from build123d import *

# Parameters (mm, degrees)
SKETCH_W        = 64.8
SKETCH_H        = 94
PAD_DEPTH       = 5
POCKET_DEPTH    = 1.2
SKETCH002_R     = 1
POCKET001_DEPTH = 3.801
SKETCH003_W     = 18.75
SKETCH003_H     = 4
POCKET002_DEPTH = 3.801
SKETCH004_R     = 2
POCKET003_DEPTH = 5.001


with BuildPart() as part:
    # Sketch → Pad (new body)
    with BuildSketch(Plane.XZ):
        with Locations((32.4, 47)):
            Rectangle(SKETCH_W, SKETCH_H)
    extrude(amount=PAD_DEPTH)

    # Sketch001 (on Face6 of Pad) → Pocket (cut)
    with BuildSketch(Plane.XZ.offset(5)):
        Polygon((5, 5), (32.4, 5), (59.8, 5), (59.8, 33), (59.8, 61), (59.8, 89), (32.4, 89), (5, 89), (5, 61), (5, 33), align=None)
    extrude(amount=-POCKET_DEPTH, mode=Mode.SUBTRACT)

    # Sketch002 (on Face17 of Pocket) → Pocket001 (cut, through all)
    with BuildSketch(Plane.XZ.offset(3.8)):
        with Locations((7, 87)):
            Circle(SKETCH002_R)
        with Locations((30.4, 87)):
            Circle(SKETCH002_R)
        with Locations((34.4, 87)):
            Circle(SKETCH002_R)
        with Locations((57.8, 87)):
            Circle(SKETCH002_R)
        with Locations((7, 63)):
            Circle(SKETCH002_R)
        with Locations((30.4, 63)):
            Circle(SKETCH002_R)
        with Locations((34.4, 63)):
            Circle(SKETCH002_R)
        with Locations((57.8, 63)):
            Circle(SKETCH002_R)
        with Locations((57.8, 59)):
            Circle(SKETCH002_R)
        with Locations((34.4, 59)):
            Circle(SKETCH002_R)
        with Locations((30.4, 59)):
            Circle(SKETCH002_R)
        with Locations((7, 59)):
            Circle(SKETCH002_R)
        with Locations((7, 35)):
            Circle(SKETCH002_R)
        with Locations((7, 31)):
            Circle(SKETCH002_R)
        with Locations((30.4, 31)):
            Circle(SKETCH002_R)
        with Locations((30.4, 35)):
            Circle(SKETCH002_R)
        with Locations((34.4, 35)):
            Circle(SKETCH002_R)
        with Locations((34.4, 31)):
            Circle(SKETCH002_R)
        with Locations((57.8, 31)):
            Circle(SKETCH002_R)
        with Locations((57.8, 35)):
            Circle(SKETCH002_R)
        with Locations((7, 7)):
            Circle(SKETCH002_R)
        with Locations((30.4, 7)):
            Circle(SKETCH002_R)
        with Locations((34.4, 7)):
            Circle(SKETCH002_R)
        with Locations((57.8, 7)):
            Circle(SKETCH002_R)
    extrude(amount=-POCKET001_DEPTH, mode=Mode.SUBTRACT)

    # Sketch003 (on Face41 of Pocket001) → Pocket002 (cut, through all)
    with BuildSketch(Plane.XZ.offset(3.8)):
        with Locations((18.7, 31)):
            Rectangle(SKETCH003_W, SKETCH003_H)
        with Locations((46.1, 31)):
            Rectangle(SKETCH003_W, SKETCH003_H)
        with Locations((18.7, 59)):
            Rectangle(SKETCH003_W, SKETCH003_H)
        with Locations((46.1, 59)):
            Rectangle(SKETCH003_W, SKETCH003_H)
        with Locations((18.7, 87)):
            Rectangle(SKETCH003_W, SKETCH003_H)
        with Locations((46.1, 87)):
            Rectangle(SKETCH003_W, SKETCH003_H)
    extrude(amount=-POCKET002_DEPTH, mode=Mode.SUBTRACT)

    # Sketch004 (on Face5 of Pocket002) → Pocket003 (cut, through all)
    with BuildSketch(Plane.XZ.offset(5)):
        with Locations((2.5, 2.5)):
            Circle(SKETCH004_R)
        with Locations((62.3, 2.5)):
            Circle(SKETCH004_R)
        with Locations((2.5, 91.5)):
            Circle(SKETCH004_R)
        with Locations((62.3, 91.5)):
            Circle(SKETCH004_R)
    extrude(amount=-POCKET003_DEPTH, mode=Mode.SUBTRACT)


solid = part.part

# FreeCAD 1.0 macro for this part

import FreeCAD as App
import Part
import Sketcher
from FreeCAD import Vector

doc = App.newDocument("Part")
body = doc.addObject("PartDesign::Body", "Body")

# Sketch on XZ plane
sketch1 = doc.addObject("Sketcher::SketchObject", "Sketch")
body.addObject(sketch1)
sketch1.AttachmentSupport = (doc.XZ_Plane, [""])
sketch1.MapMode = "FlatFace"
sketch1.addGeometry([
    Part.LineSegment(Vector(0, 94, 0), Vector(0, 0, 0)),
    Part.LineSegment(Vector(0, 0, 0), Vector(65, 0, 0)),
    Part.LineSegment(Vector(65, 0, 0), Vector(65, 94, 0)),
    Part.LineSegment(Vector(65, 94, 0), Vector(0, 94, 0)),
], False)
sketch1.addConstraint([
    Sketcher.Constraint("Coincident", 0, 2, 1, 1),
    Sketcher.Constraint("Coincident", 1, 2, 2, 1),
    Sketcher.Constraint("Coincident", 2, 2, 3, 1),
    Sketcher.Constraint("Coincident", 3, 2, 0, 1),
    Sketcher.Constraint("Vertical", 0),
    Sketcher.Constraint("Horizontal", 1),
    Sketcher.Constraint("Vertical", 2),
    Sketcher.Constraint("Horizontal", 3),
    Sketcher.Constraint("Coincident", 0, 2, -1, 1),
    Sketcher.Constraint("DistanceY", 0, 2, 0, 1, 94.0),
    Sketcher.Constraint("DistanceX", 1, 1, 1, 2, 64.8),
])
pad1 = doc.addObject("PartDesign::Pad", "Pad")
body.addObject(pad1)
pad1.Profile = sketch1
pad1.Length = 5

# Sketch on XZ plane
sketch2 = doc.addObject("Sketcher::SketchObject", "Sketch001")
body.addObject(sketch2)
sketch2.AttachmentSupport = (doc.XZ_Plane, [""])
sketch2.MapMode = "FlatFace"
sketch2.AttachmentOffset = App.Placement(Vector(0, 0, 5), App.Rotation())
sketch2.addGeometry([
    Part.LineSegment(Vector(5, 5, 0), Vector(60, 5, 0)),
    Part.LineSegment(Vector(60, 5, 0), Vector(60, 89, 0)),
    Part.LineSegment(Vector(60, 89, 0), Vector(5, 89, 0)),
    Part.LineSegment(Vector(5, 89, 0), Vector(5, 5, 0)),
], False)
sketch2.addConstraint([
    Sketcher.Constraint("Coincident", 0, 2, 1, 1),
    Sketcher.Constraint("Coincident", 1, 2, 2, 1),
    Sketcher.Constraint("Coincident", 2, 2, 3, 1),
    Sketcher.Constraint("Coincident", 3, 2, 0, 1),
    Sketcher.Constraint("Horizontal", 0),
    Sketcher.Constraint("Vertical", 1),
    Sketcher.Constraint("Horizontal", 2),
    Sketcher.Constraint("Vertical", 3),
    Sketcher.Constraint("DistanceY", 1, 1, 1, 2, 84.0),
    Sketcher.Constraint("DistanceX", 0, 1, 0, 2, 54.8),
    Sketcher.Constraint("DistanceY", -1, 1, 0, 2, 5.0),
    Sketcher.Constraint("DistanceX", -1, 1, 2, 2, 5.0),
])
pocket1 = doc.addObject("PartDesign::Pocket", "Pocket")
body.addObject(pocket1)
pocket1.Profile = sketch2
pocket1.Length = 1.2

# Sketch on XZ plane
sketch3 = doc.addObject("Sketcher::SketchObject", "Sketch002")
body.addObject(sketch3)
sketch3.AttachmentSupport = (doc.XZ_Plane, [""])
sketch3.MapMode = "FlatFace"
sketch3.AttachmentOffset = App.Placement(Vector(0, 0, 3.8), App.Rotation())
sketch3.addGeometry([
    Part.Circle(Vector(7, 87, 0), Vector(0, 0, 1), 1),  # 0
    Part.Circle(Vector(30.4, 87, 0), Vector(0, 0, 1), 1),  # 1
    Part.Circle(Vector(34.4, 87, 0), Vector(0, 0, 1), 1),  # 2
    Part.Circle(Vector(57.8, 87, 0), Vector(0, 0, 1), 1),  # 3
    Part.Circle(Vector(7, 63, 0), Vector(0, 0, 1), 1),  # 4
    Part.Circle(Vector(30.4, 63, 0), Vector(0, 0, 1), 1),  # 5
    Part.Circle(Vector(34.4, 63, 0), Vector(0, 0, 1), 1),  # 6
    Part.Circle(Vector(57.8, 63, 0), Vector(0, 0, 1), 1),  # 7
    Part.Circle(Vector(57.8, 59, 0), Vector(0, 0, 1), 1),  # 8
    Part.Circle(Vector(34.4, 59, 0), Vector(0, 0, 1), 1),  # 9
    Part.Circle(Vector(30.4, 59, 0), Vector(0, 0, 1), 1),  # 10
    Part.Circle(Vector(7, 59, 0), Vector(0, 0, 1), 1),  # 11
    Part.Circle(Vector(7, 35, 0), Vector(0, 0, 1), 1),  # 12
    Part.Circle(Vector(7, 31, 0), Vector(0, 0, 1), 1),  # 13
    Part.Circle(Vector(30.4, 31, 0), Vector(0, 0, 1), 1),  # 14
    Part.Circle(Vector(30.4, 35, 0), Vector(0, 0, 1), 1),  # 15
    Part.Circle(Vector(34.4, 35, 0), Vector(0, 0, 1), 1),  # 16
    Part.Circle(Vector(34.4, 31, 0), Vector(0, 0, 1), 1),  # 17
    Part.Circle(Vector(57.8, 31, 0), Vector(0, 0, 1), 1),  # 18
    Part.Circle(Vector(57.8, 35, 0), Vector(0, 0, 1), 1),  # 19
    Part.Circle(Vector(7, 7, 0), Vector(0, 0, 1), 1),  # 20
    Part.Circle(Vector(30.4, 7, 0), Vector(0, 0, 1), 1),  # 21
    Part.Circle(Vector(34.4, 7, 0), Vector(0, 0, 1), 1),  # 22
    Part.Circle(Vector(57.8, 7, 0), Vector(0, 0, 1), 1),  # 23
], False)
sketch3.addConstraint([
    Sketcher.Constraint("Equal", 0, 1),
    Sketcher.Constraint("Equal", 1, 2),
    Sketcher.Constraint("Equal", 2, 3),
    Sketcher.Constraint("Equal", 3, 4),
    Sketcher.Constraint("Equal", 4, 5),
    Sketcher.Constraint("Equal", 5, 6),
    Sketcher.Constraint("Equal", 6, 7),
    Sketcher.Constraint("Equal", 7, 8),
    Sketcher.Constraint("Equal", 8, 9),
    Sketcher.Constraint("Equal", 9, 10),
    Sketcher.Constraint("Equal", 10, 11),
    Sketcher.Constraint("Equal", 11, 12),
    Sketcher.Constraint("Equal", 12, 13),
    Sketcher.Constraint("Equal", 13, 14),
    Sketcher.Constraint("Equal", 14, 15),
    Sketcher.Constraint("Equal", 15, 16),
    Sketcher.Constraint("Equal", 16, 17),
    Sketcher.Constraint("Equal", 17, 18),
    Sketcher.Constraint("Equal", 18, 19),
    Sketcher.Constraint("Equal", 19, 20),
    Sketcher.Constraint("Equal", 20, 21),
    Sketcher.Constraint("Equal", 21, 22),
    Sketcher.Constraint("Equal", 22, 23),
    Sketcher.Constraint("Horizontal", 0, 3, 1, 3),
    Sketcher.Constraint("Horizontal", 1, 3, 2, 3),
    Sketcher.Constraint("Horizontal", 2, 3, 3, 3),
    Sketcher.Constraint("Horizontal", 4, 3, 5, 3),
    Sketcher.Constraint("Horizontal", 5, 3, 6, 3),
    Sketcher.Constraint("Horizontal", 6, 3, 7, 3),
    Sketcher.Constraint("Horizontal", 8, 3, 9, 3),
    Sketcher.Constraint("Horizontal", 9, 3, 10, 3),
    Sketcher.Constraint("Horizontal", 10, 3, 11, 3),
    Sketcher.Constraint("Horizontal", 13, 3, 14, 3),
    Sketcher.Constraint("Horizontal", 12, 3, 15, 3),
    Sketcher.Constraint("Horizontal", 15, 3, 16, 3),
    Sketcher.Constraint("Horizontal", 14, 3, 17, 3),
    Sketcher.Constraint("Horizontal", 17, 3, 18, 3),
    Sketcher.Constraint("Horizontal", 16, 3, 19, 3),
    Sketcher.Constraint("Horizontal", 20, 3, 21, 3),
    Sketcher.Constraint("Horizontal", 21, 3, 22, 3),
    Sketcher.Constraint("Horizontal", 22, 3, 23, 3),
    Sketcher.Constraint("Vertical", 0, 3, 4, 3),
    Sketcher.Constraint("Vertical", 1, 3, 5, 3),
    Sketcher.Constraint("Vertical", 2, 3, 6, 3),
    Sketcher.Constraint("Vertical", 3, 3, 7, 3),
    Sketcher.Constraint("Vertical", 7, 3, 8, 3),
    Sketcher.Constraint("Vertical", 6, 3, 9, 3),
    Sketcher.Constraint("Vertical", 5, 3, 10, 3),
    Sketcher.Constraint("Vertical", 4, 3, 11, 3),
    Sketcher.Constraint("Vertical", 11, 3, 12, 3),
    Sketcher.Constraint("Vertical", 12, 3, 13, 3),
    Sketcher.Constraint("Vertical", 10, 3, 14, 3),
    Sketcher.Constraint("Vertical", 14, 3, 15, 3),
    Sketcher.Constraint("Vertical", 9, 3, 16, 3),
    Sketcher.Constraint("Vertical", 16, 3, 17, 3),
    Sketcher.Constraint("Vertical", 8, 3, 18, 3),
    Sketcher.Constraint("Vertical", 18, 3, 19, 3),
    Sketcher.Constraint("Vertical", 13, 3, 20, 3),
    Sketcher.Constraint("Vertical", 15, 3, 21, 3),
    Sketcher.Constraint("Vertical", 17, 3, 22, 3),
    Sketcher.Constraint("Vertical", 19, 3, 23, 3),
    Sketcher.Constraint("Diameter", 0, 2.0),
    Sketcher.Constraint("DistanceX", -1, 1, 0, 3, 7.0),
    Sketcher.Constraint("DistanceY", -1, 1, 0, 3, 87.0),
    Sketcher.Constraint("DistanceY", -1, 1, 4, 3, 63.0),
    Sketcher.Constraint("DistanceY", -1, 1, 8, 3, 59.0),
    Sketcher.Constraint("DistanceY", -1, 1, 12, 3, 35.0),
    Sketcher.Constraint("DistanceY", -1, 1, 13, 3, 31.0),
    Sketcher.Constraint("DistanceY", -1, 1, 20, 3, 7.0),
    Sketcher.Constraint("DistanceX", 1, 3, 2, 3, 4.0),
    Sketcher.Constraint("DistanceX", -1, 1, 1, 3, 30.4),
    Sketcher.Constraint("DistanceX", -1, 1, 3, 3, 57.8),
])
pocket2 = doc.addObject("PartDesign::Pocket", "Pocket001")
body.addObject(pocket2)
pocket2.Profile = sketch3
pocket2.Type = "ThroughAll"

# Sketch on XZ plane
sketch4 = doc.addObject("Sketcher::SketchObject", "Sketch003")
body.addObject(sketch4)
sketch4.AttachmentSupport = (doc.XZ_Plane, [""])
sketch4.MapMode = "FlatFace"
sketch4.AttachmentOffset = App.Placement(Vector(0, 0, 3.8), App.Rotation())
sketch4.addGeometry([
    Part.LineSegment(Vector(9.3, 33, 0), Vector(9.3, 29, 0)),  # 0
    Part.LineSegment(Vector(9.3, 29, 0), Vector(28.1, 29, 0)),  # 1
    Part.LineSegment(Vector(28.1, 29, 0), Vector(28.1, 33, 0)),  # 2
    Part.LineSegment(Vector(28.1, 33, 0), Vector(9.3, 33, 0)),  # 3
    Part.LineSegment(Vector(36.7, 33, 0), Vector(36.7, 29, 0)),  # 4
    Part.LineSegment(Vector(36.7, 29, 0), Vector(55.5, 29, 0)),  # 5
    Part.LineSegment(Vector(55.5, 29, 0), Vector(55.5, 33, 0)),  # 6
    Part.LineSegment(Vector(55.5, 33, 0), Vector(36.7, 33, 0)),  # 7
    Part.LineSegment(Vector(9.3, 61, 0), Vector(9.3, 57, 0)),  # 8
    Part.LineSegment(Vector(9.3, 57, 0), Vector(28.1, 57, 0)),  # 9
    Part.LineSegment(Vector(28.1, 57, 0), Vector(28.1, 61, 0)),  # 10
    Part.LineSegment(Vector(28.1, 61, 0), Vector(9.3, 61, 0)),  # 11
    Part.LineSegment(Vector(36.7, 61, 0), Vector(36.7, 57, 0)),  # 12
    Part.LineSegment(Vector(36.7, 57, 0), Vector(55.5, 57, 0)),  # 13
    Part.LineSegment(Vector(55.5, 57, 0), Vector(55.5, 61, 0)),  # 14
    Part.LineSegment(Vector(55.5, 61, 0), Vector(36.7, 61, 0)),  # 15
    Part.LineSegment(Vector(9.3, 89, 0), Vector(9.3, 85, 0)),  # 16
    Part.LineSegment(Vector(9.3, 85, 0), Vector(28.1, 85, 0)),  # 17
    Part.LineSegment(Vector(28.1, 85, 0), Vector(28.1, 89, 0)),  # 18
    Part.LineSegment(Vector(28.1, 89, 0), Vector(9.3, 89, 0)),  # 19
    Part.LineSegment(Vector(36.7, 89, 0), Vector(36.7, 85, 0)),  # 20
    Part.LineSegment(Vector(36.7, 85, 0), Vector(55.5, 85, 0)),  # 21
    Part.LineSegment(Vector(55.5, 85, 0), Vector(55.5, 89, 0)),  # 22
    Part.LineSegment(Vector(55.5, 89, 0), Vector(36.7, 89, 0)),  # 23
], False)
sketch4.addConstraint([
    Sketcher.Constraint("Coincident", 0, 2, 1, 1),
    Sketcher.Constraint("Coincident", 1, 2, 2, 1),
    Sketcher.Constraint("Coincident", 2, 2, 3, 1),
    Sketcher.Constraint("Coincident", 3, 2, 0, 1),
    Sketcher.Constraint("Coincident", 4, 2, 5, 1),
    Sketcher.Constraint("Coincident", 5, 2, 6, 1),
    Sketcher.Constraint("Coincident", 6, 2, 7, 1),
    Sketcher.Constraint("Coincident", 7, 2, 4, 1),
    Sketcher.Constraint("Coincident", 8, 2, 9, 1),
    Sketcher.Constraint("Coincident", 9, 2, 10, 1),
    Sketcher.Constraint("Coincident", 10, 2, 11, 1),
    Sketcher.Constraint("Coincident", 11, 2, 8, 1),
    Sketcher.Constraint("Coincident", 12, 2, 13, 1),
    Sketcher.Constraint("Coincident", 13, 2, 14, 1),
    Sketcher.Constraint("Coincident", 14, 2, 15, 1),
    Sketcher.Constraint("Coincident", 15, 2, 12, 1),
    Sketcher.Constraint("Coincident", 16, 2, 17, 1),
    Sketcher.Constraint("Coincident", 17, 2, 18, 1),
    Sketcher.Constraint("Coincident", 18, 2, 19, 1),
    Sketcher.Constraint("Coincident", 19, 2, 16, 1),
    Sketcher.Constraint("Coincident", 20, 2, 21, 1),
    Sketcher.Constraint("Coincident", 21, 2, 22, 1),
    Sketcher.Constraint("Coincident", 22, 2, 23, 1),
    Sketcher.Constraint("Coincident", 23, 2, 20, 1),
    Sketcher.Constraint("Vertical", 0),
    Sketcher.Constraint("Horizontal", 1),
    Sketcher.Constraint("Vertical", 2),
    Sketcher.Constraint("Horizontal", 3),
    Sketcher.Constraint("Vertical", 4),
    Sketcher.Constraint("Horizontal", 5),
    Sketcher.Constraint("Vertical", 6),
    Sketcher.Constraint("Horizontal", 7),
    Sketcher.Constraint("Vertical", 8),
    Sketcher.Constraint("Horizontal", 9),
    Sketcher.Constraint("Vertical", 10),
    Sketcher.Constraint("Horizontal", 11),
    Sketcher.Constraint("Vertical", 12),
    Sketcher.Constraint("Horizontal", 13),
    Sketcher.Constraint("Vertical", 14),
    Sketcher.Constraint("Horizontal", 15),
    Sketcher.Constraint("Vertical", 16),
    Sketcher.Constraint("Horizontal", 17),
    Sketcher.Constraint("Vertical", 18),
    Sketcher.Constraint("Horizontal", 19),
    Sketcher.Constraint("Vertical", 20),
    Sketcher.Constraint("Horizontal", 21),
    Sketcher.Constraint("Vertical", 22),
    Sketcher.Constraint("Horizontal", 23),
    Sketcher.Constraint("Horizontal", 1, 2, 4, 2),
    Sketcher.Constraint("Horizontal", 3, 2, 6, 2),
    Sketcher.Constraint("Horizontal", 9, 2, 12, 2),
    Sketcher.Constraint("Horizontal", 11, 2, 14, 2),
    Sketcher.Constraint("Horizontal", 17, 2, 20, 2),
    Sketcher.Constraint("Horizontal", 19, 2, 22, 2),
    Sketcher.Constraint("Vertical", 3, 2, 8, 2),
    Sketcher.Constraint("Vertical", 2, 2, 9, 2),
    Sketcher.Constraint("Vertical", 7, 2, 12, 2),
    Sketcher.Constraint("Vertical", 6, 2, 13, 2),
    Sketcher.Constraint("Vertical", 11, 2, 16, 2),
    Sketcher.Constraint("Vertical", 10, 2, 17, 2),
    Sketcher.Constraint("Vertical", 15, 2, 20, 2),
    Sketcher.Constraint("Vertical", 14, 2, 21, 2),
    Sketcher.Constraint("Equal", 3, 5),
    Sketcher.Constraint("Equal", 6, 8),
    Sketcher.Constraint("Equal", 14, 16),
    Sketcher.Constraint("DistanceY", 0, 2, 0, 1, 4.0),
    Sketcher.Constraint("DistanceY", -1, 1, 0, 2, 29.0),
    Sketcher.Constraint("DistanceY", -1, 1, 8, 2, 57.0),
    Sketcher.Constraint("DistanceY", -1, 1, 16, 2, 85.0),
    Sketcher.Constraint("DistanceX", 1, 1, 1, 2, 18.75),
    Sketcher.Constraint("DistanceX", 0, 2, 4, 2, 27.4),
    Sketcher.Constraint("DistanceX", -1, 1, 0, 2, 9.325),
])
pocket3 = doc.addObject("PartDesign::Pocket", "Pocket002")
body.addObject(pocket3)
pocket3.Profile = sketch4
pocket3.Type = "ThroughAll"

# Sketch on XZ plane
sketch5 = doc.addObject("Sketcher::SketchObject", "Sketch004")
body.addObject(sketch5)
sketch5.AttachmentSupport = (doc.XZ_Plane, [""])
sketch5.MapMode = "FlatFace"
sketch5.AttachmentOffset = App.Placement(Vector(0, 0, 5), App.Rotation())
sketch5.addGeometry([
    Part.Circle(Vector(2.5, 2.5, 0), Vector(0, 0, 1), 2),
    Part.Circle(Vector(62.3, 2.5, 0), Vector(0, 0, 1), 2),
    Part.Circle(Vector(2.5, 91.5, 0), Vector(0, 0, 1), 2),
    Part.Circle(Vector(62.3, 91.5, 0), Vector(0, 0, 1), 2),
], False)
sketch5.addConstraint([
    Sketcher.Constraint("Equal", 0, 1),
    Sketcher.Constraint("Equal", 1, 2),
    Sketcher.Constraint("Equal", 2, 3),
    Sketcher.Constraint("Horizontal", 0, 3, 1, 3),
    Sketcher.Constraint("Horizontal", 2, 3, 3, 3),
    Sketcher.Constraint("Vertical", 0, 3, 2, 3),
    Sketcher.Constraint("Vertical", 1, 3, 3, 3),
    Sketcher.Constraint("Diameter", 0, 4.0),
    Sketcher.Constraint("DistanceY", 0, 3, 2, 3, 89.0),
    Sketcher.Constraint("DistanceX", -1, 1, 0, 3, 2.5),
    Sketcher.Constraint("DistanceY", -1, 1, 0, 3, 2.5),
    Sketcher.Constraint("DistanceX", -1, 1, 1, 3, 62.3),
])
pocket4 = doc.addObject("PartDesign::Pocket", "Pocket003")
body.addObject(pocket4)
pocket4.Profile = sketch5
pocket4.Type = "ThroughAll"

doc.recompute()
